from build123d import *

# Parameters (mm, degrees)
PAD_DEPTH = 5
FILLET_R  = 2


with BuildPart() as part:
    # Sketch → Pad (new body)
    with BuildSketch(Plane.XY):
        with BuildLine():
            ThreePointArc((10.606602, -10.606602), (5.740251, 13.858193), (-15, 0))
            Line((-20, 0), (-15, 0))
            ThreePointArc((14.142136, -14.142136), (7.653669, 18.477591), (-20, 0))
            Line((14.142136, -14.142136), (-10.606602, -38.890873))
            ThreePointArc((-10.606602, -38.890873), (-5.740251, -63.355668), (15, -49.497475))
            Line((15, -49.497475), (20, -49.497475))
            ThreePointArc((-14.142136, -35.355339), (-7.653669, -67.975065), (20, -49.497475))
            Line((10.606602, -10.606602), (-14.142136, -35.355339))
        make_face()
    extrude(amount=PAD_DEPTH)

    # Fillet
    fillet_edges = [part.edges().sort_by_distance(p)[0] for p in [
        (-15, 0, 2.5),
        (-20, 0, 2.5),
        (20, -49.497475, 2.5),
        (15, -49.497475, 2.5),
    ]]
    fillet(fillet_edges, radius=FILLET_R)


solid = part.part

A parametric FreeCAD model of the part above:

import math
import FreeCAD as App
import Part
import Sketcher
from FreeCAD import Vector
Q = App.Units.Quantity


def edges_at(feature, points):
    """Names of the edges that pass closest to the given points."""
    edges = feature.Shape.Edges
    near = lambda p: min(range(len(edges)), key=lambda i: edges[i].distToShape(Part.Vertex(*p))[0])
    return sorted({f"Edge{near(p) + 1}" for p in points})

doc = App.newDocument("Part")
body = doc.addObject("PartDesign::Body", "Body")

sketch1 = doc.addObject("Sketcher::SketchObject", "Sketch")
body.addObject(sketch1)
sketch1.AttachmentSupport = (doc.XY_Plane, [""])
sketch1.MapMode = "FlatFace"
sketch1.addGeometry([
    Part.ArcOfCircle(Part.Circle(Vector(0, 0, 0), Vector(0, 0, 1), 15), math.radians(-45), math.radians(180)),
    Part.LineSegment(Vector(11, -11, 0), Vector(-14, -35, 0)),
    Part.ArcOfCircle(Part.Circle(Vector(0, -49, 0), Vector(0, 0, 1), 20), math.radians(135), math.radians(360)),
    Part.LineSegment(Vector(20, -49, 0), Vector(15, -49, 0)),
    Part.ArcOfCircle(Part.Circle(Vector(0, -49, 0), Vector(0, 0, 1), 15), math.radians(135), math.radians(360)),
    Part.LineSegment(Vector(-11, -39, 0), Vector(14, -14, 0)),
    Part.ArcOfCircle(Part.Circle(Vector(0, 0, 0), Vector(0, 0, 1), 20), math.radians(-45), math.radians(180)),
    Part.LineSegment(Vector(-20, 0, 0), Vector(-15, 0, 0)),
], False)
sketch1.addConstraint([
    Sketcher.Constraint("Tangent", 0, 1, 1, 1),
    Sketcher.Constraint("Tangent", 1, 2, 2, 1),
    Sketcher.Constraint("Coincident", 2, 2, 3, 1),
    Sketcher.Constraint("Coincident", 3, 2, 4, 2),
    Sketcher.Constraint("Tangent", 4, 1, 5, 1),
    Sketcher.Constraint("Tangent", 5, 2, 6, 1),
    Sketcher.Constraint("Coincident", 6, 2, 7, 1),
    Sketcher.Constraint("Coincident", 7, 2, 0, 2),
    Sketcher.Constraint("Horizontal", 3),
    Sketcher.Constraint("Horizontal", 7),
    Sketcher.Constraint("Coincident", 0, 3, -1, 1),
    Sketcher.Constraint("Coincident", 6, 3, -1, 1),
    Sketcher.Constraint("Coincident", 4, 3, 2, 3),
    Sketcher.Constraint("Equal", 0, 4),
    Sketcher.Constraint("Equal", 2, 6),
    Sketcher.Constraint("PointOnObject", 2, 3, -2),
    Sketcher.Constraint("PointOnObject", 6, 2, -1),
    Sketcher.Constraint("Horizontal", 4, 3, 2, 2),
    Sketcher.Constraint("Radius", 0, 15.0),
    Sketcher.Constraint("Radius", 2, 20.0),
    Sketcher.Constraint("Angle", 1, Q("-135.000001 deg")),
])
pad1 = doc.addObject("PartDesign::Pad", "Pad")
body.addObject(pad1)
pad1.Profile = sketch1
pad1.Length = 5
doc.recompute()

fillet = doc.addObject("PartDesign::Fillet", "Fillet")
body.addObject(fillet)
fillet.Base = (pad1, edges_at(pad1, [
    (-15, 0, 2.5),
    (-20, 0, 2.5),
    (20, -49.497, 2.5),
    (15, -49.497, 2.5),
]))
fillet.Radius = 2

doc.recompute()
